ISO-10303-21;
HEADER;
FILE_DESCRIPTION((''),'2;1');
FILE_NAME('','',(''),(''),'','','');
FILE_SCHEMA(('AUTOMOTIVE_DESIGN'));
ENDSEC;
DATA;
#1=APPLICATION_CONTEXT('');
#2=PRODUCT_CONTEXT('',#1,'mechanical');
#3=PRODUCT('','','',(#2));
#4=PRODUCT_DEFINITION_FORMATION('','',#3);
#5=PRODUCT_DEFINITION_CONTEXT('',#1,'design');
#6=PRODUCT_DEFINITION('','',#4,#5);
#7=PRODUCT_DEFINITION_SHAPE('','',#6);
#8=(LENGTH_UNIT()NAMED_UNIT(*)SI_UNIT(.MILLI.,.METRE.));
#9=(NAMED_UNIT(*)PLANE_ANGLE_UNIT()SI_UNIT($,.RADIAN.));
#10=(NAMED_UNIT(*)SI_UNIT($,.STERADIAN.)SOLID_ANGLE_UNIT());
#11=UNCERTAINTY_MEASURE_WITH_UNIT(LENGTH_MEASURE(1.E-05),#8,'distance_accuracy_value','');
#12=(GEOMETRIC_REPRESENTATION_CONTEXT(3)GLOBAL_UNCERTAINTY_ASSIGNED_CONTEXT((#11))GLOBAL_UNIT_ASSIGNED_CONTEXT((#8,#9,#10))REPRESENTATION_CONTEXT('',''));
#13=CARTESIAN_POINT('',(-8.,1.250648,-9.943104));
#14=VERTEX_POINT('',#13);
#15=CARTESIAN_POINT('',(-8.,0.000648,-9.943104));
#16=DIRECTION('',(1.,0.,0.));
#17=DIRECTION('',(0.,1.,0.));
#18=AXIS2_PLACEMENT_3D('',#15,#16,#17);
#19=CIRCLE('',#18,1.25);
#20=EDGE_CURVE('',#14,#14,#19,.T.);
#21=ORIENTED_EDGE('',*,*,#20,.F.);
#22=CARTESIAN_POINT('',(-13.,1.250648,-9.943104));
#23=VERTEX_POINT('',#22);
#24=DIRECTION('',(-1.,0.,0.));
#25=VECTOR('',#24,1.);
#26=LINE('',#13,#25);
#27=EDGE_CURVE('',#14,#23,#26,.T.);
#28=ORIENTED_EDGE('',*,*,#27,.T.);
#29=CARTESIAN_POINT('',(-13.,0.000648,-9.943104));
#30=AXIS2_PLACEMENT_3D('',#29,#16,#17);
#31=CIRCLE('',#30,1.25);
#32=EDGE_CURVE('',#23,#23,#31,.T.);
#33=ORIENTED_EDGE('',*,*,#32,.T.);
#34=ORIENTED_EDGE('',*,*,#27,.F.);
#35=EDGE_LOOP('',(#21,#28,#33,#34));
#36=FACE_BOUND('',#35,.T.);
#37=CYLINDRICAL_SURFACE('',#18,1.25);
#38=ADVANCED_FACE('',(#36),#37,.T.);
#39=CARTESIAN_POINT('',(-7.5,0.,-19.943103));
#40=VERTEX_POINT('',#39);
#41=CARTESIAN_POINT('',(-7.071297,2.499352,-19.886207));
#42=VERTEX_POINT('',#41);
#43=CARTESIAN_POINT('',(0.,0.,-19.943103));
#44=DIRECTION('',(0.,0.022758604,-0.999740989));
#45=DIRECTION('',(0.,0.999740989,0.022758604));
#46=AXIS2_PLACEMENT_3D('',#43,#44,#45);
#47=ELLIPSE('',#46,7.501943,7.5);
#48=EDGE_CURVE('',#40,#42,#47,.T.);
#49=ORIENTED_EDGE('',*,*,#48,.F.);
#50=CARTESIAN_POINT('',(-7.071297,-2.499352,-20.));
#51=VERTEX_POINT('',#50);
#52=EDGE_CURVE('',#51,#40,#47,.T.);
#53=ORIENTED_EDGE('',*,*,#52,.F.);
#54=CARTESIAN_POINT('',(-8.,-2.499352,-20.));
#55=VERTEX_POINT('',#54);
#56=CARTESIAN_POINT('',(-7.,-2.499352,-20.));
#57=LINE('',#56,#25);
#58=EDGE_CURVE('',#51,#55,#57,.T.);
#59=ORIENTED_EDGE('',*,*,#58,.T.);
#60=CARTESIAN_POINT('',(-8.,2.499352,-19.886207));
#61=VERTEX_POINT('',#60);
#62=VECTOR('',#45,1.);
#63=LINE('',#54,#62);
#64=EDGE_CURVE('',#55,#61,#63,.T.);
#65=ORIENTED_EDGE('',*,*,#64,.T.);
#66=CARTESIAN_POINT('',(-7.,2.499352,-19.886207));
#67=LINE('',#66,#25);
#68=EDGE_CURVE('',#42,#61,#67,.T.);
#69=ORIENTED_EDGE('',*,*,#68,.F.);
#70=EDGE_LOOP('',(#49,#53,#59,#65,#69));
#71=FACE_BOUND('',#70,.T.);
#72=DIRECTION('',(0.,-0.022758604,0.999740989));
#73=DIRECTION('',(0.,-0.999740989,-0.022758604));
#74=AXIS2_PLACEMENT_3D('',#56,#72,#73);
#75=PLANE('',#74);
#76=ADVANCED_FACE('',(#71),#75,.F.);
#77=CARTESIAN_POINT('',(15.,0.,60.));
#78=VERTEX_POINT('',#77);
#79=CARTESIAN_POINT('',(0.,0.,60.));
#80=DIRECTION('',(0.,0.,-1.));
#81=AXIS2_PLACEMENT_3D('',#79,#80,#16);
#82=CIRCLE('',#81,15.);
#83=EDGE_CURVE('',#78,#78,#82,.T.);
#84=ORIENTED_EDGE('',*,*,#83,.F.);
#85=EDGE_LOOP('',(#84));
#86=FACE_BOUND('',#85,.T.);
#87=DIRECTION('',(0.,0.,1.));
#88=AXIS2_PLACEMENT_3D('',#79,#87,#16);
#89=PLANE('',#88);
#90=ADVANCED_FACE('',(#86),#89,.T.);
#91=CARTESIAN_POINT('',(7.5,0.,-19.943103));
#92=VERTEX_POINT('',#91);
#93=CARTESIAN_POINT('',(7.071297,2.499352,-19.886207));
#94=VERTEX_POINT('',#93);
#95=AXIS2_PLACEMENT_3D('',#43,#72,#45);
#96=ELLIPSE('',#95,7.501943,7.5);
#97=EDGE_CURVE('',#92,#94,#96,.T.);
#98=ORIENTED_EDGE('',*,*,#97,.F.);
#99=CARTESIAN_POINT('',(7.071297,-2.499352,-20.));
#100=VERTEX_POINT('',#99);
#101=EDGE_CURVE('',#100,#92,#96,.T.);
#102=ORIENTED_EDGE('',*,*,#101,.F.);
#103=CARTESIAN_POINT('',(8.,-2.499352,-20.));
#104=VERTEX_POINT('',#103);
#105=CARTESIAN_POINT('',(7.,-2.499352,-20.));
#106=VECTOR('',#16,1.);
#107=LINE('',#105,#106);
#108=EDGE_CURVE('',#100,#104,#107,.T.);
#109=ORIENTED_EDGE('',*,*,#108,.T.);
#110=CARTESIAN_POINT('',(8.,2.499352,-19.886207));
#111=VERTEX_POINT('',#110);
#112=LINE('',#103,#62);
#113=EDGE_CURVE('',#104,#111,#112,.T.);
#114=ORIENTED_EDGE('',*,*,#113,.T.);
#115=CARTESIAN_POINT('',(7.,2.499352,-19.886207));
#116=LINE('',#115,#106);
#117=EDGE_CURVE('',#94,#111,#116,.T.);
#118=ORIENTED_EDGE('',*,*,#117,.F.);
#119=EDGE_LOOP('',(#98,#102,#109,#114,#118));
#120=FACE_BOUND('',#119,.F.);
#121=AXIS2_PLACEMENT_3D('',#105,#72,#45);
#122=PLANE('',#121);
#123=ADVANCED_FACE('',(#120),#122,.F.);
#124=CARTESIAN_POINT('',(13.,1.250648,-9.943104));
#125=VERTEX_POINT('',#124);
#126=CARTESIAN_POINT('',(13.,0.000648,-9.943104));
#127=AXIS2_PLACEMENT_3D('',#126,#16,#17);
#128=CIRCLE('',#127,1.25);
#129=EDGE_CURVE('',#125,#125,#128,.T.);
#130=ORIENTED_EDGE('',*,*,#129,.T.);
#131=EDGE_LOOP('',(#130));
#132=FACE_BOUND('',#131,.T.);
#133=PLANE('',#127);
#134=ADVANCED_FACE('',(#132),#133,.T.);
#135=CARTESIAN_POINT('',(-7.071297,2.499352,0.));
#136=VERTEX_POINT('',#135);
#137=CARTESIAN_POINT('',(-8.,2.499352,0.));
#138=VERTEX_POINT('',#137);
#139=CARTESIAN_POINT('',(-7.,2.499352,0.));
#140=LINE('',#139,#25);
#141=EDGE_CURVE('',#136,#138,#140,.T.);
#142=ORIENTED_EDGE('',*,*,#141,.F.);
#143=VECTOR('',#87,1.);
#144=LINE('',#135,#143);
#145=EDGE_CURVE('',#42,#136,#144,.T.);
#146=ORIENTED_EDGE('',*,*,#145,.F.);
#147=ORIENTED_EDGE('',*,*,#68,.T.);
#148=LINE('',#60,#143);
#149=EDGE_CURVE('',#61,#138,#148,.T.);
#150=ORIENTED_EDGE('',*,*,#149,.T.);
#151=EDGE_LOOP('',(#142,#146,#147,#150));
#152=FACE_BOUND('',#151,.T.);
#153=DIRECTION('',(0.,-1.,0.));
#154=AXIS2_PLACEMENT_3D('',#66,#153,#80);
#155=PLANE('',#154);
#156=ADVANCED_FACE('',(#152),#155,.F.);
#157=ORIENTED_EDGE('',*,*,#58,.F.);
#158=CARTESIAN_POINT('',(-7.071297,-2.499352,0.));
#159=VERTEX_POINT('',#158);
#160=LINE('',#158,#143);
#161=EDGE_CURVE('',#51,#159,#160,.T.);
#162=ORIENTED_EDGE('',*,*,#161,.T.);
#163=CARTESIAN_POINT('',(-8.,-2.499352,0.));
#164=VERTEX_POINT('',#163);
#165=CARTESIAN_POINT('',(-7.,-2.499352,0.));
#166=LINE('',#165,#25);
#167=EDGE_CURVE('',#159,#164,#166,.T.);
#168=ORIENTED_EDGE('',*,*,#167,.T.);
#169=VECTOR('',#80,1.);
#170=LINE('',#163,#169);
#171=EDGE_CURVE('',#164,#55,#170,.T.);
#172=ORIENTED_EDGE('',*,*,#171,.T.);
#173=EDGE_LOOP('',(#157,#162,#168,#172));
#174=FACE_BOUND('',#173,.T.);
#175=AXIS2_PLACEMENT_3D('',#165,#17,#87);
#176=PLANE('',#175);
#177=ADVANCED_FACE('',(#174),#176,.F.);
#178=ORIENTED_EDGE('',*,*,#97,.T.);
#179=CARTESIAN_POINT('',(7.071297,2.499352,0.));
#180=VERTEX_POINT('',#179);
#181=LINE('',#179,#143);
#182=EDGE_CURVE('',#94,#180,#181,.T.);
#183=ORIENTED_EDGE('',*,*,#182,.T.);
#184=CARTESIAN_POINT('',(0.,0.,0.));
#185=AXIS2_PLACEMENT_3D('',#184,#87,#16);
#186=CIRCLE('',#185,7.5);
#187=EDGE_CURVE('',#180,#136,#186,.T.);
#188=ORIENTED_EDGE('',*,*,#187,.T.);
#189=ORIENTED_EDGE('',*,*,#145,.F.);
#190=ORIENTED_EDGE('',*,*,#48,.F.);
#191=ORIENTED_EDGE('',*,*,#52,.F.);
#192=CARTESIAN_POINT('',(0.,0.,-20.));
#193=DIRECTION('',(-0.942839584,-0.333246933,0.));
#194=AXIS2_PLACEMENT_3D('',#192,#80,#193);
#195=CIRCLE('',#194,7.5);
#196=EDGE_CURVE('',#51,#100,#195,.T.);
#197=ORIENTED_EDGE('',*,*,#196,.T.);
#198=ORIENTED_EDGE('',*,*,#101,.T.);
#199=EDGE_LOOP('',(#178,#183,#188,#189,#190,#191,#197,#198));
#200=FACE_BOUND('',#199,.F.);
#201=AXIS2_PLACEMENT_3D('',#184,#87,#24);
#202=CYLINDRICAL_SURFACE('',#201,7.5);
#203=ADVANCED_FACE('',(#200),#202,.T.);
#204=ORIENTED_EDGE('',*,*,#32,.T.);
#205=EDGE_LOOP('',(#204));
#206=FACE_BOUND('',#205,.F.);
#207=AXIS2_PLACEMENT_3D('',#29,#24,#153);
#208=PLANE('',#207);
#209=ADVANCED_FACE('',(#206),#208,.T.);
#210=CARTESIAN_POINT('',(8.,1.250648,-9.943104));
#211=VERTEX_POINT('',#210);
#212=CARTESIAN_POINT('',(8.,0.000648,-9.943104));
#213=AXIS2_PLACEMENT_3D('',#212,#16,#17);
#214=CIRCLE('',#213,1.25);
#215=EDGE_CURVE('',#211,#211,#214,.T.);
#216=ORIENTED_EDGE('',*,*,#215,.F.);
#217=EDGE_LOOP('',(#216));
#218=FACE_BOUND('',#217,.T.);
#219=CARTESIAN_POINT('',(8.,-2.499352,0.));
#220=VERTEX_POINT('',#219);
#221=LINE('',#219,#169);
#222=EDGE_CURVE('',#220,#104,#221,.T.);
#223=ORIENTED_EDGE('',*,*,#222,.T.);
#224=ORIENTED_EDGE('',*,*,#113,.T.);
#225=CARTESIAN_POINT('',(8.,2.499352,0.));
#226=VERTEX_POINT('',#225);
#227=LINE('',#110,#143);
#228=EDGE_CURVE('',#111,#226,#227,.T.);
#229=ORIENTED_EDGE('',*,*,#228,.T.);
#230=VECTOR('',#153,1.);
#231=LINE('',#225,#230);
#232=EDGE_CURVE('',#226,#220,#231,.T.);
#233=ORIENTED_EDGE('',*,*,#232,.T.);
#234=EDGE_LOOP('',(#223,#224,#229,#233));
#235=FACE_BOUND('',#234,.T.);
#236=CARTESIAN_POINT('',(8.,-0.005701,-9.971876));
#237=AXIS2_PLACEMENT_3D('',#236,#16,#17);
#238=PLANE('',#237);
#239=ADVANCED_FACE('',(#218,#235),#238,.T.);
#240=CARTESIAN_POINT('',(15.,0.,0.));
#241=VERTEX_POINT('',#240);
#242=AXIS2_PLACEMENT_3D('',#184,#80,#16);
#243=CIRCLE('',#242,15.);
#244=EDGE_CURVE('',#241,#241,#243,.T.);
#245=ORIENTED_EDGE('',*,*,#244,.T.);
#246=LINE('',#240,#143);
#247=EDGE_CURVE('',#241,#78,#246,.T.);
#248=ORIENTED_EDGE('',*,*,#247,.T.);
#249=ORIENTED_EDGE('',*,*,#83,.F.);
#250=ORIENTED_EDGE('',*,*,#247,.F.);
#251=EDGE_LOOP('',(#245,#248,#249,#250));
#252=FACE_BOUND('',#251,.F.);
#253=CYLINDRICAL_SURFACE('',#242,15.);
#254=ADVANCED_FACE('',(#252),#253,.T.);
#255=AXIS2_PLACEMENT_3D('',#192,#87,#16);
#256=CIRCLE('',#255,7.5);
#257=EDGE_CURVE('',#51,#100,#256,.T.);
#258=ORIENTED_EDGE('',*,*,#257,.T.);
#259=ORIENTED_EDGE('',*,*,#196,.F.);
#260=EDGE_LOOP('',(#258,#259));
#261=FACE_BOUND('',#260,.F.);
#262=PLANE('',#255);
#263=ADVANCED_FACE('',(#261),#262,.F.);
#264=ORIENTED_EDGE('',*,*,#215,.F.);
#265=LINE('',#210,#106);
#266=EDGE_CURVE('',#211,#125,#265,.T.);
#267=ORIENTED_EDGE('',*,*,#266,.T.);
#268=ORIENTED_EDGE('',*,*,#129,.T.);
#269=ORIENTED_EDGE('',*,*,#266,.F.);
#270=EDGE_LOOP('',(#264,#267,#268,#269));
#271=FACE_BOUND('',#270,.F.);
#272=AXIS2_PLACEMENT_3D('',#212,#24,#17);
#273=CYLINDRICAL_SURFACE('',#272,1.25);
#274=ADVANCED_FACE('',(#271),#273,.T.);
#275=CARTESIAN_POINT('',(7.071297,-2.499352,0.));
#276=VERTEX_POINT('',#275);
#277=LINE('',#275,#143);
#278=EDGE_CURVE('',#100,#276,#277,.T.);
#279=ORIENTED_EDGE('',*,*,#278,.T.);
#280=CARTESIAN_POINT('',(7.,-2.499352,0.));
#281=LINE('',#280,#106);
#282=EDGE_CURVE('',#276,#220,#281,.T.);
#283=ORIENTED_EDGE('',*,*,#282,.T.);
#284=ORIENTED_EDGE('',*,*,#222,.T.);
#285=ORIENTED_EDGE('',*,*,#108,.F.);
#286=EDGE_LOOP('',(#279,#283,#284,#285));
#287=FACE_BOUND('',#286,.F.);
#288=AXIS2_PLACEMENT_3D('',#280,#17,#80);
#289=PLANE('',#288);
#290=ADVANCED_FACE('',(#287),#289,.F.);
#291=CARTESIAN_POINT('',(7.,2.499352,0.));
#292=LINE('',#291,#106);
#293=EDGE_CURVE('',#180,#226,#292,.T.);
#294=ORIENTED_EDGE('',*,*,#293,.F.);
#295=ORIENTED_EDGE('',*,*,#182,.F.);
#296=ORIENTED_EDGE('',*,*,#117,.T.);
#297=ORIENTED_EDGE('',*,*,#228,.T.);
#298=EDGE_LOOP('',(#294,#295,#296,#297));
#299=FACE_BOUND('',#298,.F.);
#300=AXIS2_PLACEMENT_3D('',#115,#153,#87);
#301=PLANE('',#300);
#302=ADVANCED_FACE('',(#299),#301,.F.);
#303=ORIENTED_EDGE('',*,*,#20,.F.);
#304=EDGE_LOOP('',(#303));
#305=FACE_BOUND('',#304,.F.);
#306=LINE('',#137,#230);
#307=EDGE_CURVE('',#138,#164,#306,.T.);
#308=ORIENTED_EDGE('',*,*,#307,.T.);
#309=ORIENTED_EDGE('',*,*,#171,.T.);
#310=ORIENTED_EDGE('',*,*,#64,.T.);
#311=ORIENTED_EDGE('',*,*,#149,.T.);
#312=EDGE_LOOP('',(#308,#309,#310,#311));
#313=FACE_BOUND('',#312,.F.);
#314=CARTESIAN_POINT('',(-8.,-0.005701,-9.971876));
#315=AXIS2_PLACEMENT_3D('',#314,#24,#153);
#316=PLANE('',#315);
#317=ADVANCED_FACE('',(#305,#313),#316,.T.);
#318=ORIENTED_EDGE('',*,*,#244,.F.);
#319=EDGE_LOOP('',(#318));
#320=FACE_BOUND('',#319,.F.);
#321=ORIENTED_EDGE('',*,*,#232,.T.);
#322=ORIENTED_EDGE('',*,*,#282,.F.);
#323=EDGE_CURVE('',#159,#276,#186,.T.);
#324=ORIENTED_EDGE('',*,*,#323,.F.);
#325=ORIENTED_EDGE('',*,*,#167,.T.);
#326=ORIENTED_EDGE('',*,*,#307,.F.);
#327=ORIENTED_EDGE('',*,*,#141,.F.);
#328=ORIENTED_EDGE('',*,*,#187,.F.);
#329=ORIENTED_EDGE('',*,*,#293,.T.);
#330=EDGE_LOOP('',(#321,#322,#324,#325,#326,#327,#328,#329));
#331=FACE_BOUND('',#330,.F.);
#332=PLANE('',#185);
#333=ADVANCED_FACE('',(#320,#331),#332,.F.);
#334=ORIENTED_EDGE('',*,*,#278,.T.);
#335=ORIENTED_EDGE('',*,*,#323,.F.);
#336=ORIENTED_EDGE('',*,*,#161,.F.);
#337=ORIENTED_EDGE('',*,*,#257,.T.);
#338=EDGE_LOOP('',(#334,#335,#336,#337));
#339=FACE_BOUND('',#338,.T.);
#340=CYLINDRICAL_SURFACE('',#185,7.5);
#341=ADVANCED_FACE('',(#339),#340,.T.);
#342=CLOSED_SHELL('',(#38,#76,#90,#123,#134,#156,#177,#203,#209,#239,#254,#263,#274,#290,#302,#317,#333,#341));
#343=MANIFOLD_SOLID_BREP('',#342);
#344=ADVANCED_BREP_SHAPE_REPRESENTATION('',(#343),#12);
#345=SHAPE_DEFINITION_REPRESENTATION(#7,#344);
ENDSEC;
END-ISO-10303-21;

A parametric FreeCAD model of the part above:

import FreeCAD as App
import Part
import Sketcher
Q = App.Units.Quantity

doc = App.newDocument("Part")
body = doc.addObject("PartDesign::Body", "Body")

# Sketch on XY plane
sketch1 = doc.addObject("Sketcher::SketchObject", "Sketch")
body.addObject(sketch1)
sketch1.AttachmentSupport = (doc.XY_Plane, [""])
sketch1.MapMode = "FlatFace"
sketch1.addGeometry(Part.Circle(App.Vector(0, 0, 0), App.Vector(0, 0, 1), 15), False)
sketch1.addConstraint([
    Sketcher.Constraint("Coincident", 0, 3, -1, 1),
    Sketcher.Constraint("Diameter", 0, Q("30 mm")),
])
pad1 = doc.addObject("PartDesign::Pad", "Pad")
body.addObject(pad1)
pad1.Profile = sketch1
pad1.Length = 60

# Sketch on XY plane
sketch2 = doc.addObject("Sketcher::SketchObject", "Sketch001")
body.addObject(sketch2)
sketch2.AttachmentSupport = (doc.XY_Plane, [""])
sketch2.MapMode = "FlatFace"
sketch2.addGeometry(Part.Circle(App.Vector(0, 0, 0), App.Vector(0, 0, 1), 8), False)
sketch2.addConstraint([
    Sketcher.Constraint("Coincident", 0, 3, -1, 1),
    Sketcher.Constraint("Diameter", 0, Q("15 mm")),
])
pad2 = doc.addObject("PartDesign::Pad", "Pad001")
body.addObject(pad2)
pad2.Profile = sketch2
pad2.Length = 20
pad2.Reversed = True

# Sketch on YZ plane
sketch3 = doc.addObject("Sketcher::SketchObject", "Sketch002")
body.addObject(sketch3)
sketch3.AttachmentSupport = (doc.YZ_Plane, [""])
sketch3.MapMode = "FlatFace"
sketch3.AttachmentOffset = App.Placement(App.Vector(0, 0, 7), App.Rotation())
sketch3.addGeometry([
    Part.LineSegment(App.Vector(-2.5, 0, 0), App.Vector(-2.5, -20, 0)),
    Part.LineSegment(App.Vector(-2.5, -20, 0), App.Vector(2.5, -19.9, 0)),
    Part.LineSegment(App.Vector(2.5, -19.9, 0), App.Vector(2.5, 0, 0)),
    Part.LineSegment(App.Vector(2.5, 0, 0), App.Vector(-2.5, 0, 0)),
], False)
sketch3.addConstraint([
    Sketcher.Constraint("Coincident", 0, 2, 1, 1),
    Sketcher.Constraint("Coincident", 1, 2, 2, 1),
    Sketcher.Constraint("Coincident", 2, 2, 3, 1),
    Sketcher.Constraint("Coincident", 3, 2, 0, 1),
    Sketcher.Constraint("Vertical", 0),
    Sketcher.Constraint("Vertical", 2),
    Sketcher.Constraint("Horizontal", 3),
    Sketcher.Constraint("Symmetric", 2, 2, 3, 2, -1, 1),
    Sketcher.Constraint("DistanceY", 0, 2, 0, 1, Q("20 mm")),
    Sketcher.Constraint("Distance", 1, Q("4.999999 mm")),
    Sketcher.Constraint("DistanceX", 3, 2, 3, 1, Q("4.998704 mm")),
])
pad3 = doc.addObject("PartDesign::Pad", "Pad002")
body.addObject(pad3)
pad3.Profile = sketch3
pad3.Length = 1

# Sketch on YZ plane
sketch4 = doc.addObject("Sketcher::SketchObject", "Sketch003")
body.addObject(sketch4)
sketch4.AttachmentSupport = (doc.YZ_Plane, [""])
sketch4.MapMode = "FlatFace"
sketch4.AttachmentOffset = App.Placement(App.Vector(0, 0, 8), App.Rotation())
sketch4.addGeometry(Part.Circle(App.Vector(0, -9.9, 0), App.Vector(0, 0, 1), 1.2), False)
sketch4.addConstraint([
    Sketcher.Constraint("Diameter", 0, Q("2.5 mm")),
    Sketcher.Constraint("DistanceX", -1, 1, 0, 3, Q("0.000648 mm")),
    Sketcher.Constraint("DistanceY", 0, 3, -1, 1, Q("9.943104 mm")),
])
pad4 = doc.addObject("PartDesign::Pad", "Pad003")
body.addObject(pad4)
pad4.Profile = sketch4
pad4.Length = 5
body2 = doc.addObject("PartDesign::Body", "Body001")
doc.recompute()

body2.BaseFeature = body
doc.recompute()

mirroring = doc.addObject("Part::Mirroring", "Mirroring")
mirroring.Source = body
mirroring.Base = App.Vector(0, 0, 0)
mirroring.Normal = App.Vector(1, 0, 0)
body3 = doc.addObject("PartDesign::Body", "Body002")
body3.BaseFeature = mirroring
boolean = doc.addObject("PartDesign::Boolean", "Boolean")
body2.addObject(boolean)
boolean.Type = "Fuse"
boolean.addObjects([body3])
doc.recompute()
mirroring.Visibility = False

doc.recompute()
